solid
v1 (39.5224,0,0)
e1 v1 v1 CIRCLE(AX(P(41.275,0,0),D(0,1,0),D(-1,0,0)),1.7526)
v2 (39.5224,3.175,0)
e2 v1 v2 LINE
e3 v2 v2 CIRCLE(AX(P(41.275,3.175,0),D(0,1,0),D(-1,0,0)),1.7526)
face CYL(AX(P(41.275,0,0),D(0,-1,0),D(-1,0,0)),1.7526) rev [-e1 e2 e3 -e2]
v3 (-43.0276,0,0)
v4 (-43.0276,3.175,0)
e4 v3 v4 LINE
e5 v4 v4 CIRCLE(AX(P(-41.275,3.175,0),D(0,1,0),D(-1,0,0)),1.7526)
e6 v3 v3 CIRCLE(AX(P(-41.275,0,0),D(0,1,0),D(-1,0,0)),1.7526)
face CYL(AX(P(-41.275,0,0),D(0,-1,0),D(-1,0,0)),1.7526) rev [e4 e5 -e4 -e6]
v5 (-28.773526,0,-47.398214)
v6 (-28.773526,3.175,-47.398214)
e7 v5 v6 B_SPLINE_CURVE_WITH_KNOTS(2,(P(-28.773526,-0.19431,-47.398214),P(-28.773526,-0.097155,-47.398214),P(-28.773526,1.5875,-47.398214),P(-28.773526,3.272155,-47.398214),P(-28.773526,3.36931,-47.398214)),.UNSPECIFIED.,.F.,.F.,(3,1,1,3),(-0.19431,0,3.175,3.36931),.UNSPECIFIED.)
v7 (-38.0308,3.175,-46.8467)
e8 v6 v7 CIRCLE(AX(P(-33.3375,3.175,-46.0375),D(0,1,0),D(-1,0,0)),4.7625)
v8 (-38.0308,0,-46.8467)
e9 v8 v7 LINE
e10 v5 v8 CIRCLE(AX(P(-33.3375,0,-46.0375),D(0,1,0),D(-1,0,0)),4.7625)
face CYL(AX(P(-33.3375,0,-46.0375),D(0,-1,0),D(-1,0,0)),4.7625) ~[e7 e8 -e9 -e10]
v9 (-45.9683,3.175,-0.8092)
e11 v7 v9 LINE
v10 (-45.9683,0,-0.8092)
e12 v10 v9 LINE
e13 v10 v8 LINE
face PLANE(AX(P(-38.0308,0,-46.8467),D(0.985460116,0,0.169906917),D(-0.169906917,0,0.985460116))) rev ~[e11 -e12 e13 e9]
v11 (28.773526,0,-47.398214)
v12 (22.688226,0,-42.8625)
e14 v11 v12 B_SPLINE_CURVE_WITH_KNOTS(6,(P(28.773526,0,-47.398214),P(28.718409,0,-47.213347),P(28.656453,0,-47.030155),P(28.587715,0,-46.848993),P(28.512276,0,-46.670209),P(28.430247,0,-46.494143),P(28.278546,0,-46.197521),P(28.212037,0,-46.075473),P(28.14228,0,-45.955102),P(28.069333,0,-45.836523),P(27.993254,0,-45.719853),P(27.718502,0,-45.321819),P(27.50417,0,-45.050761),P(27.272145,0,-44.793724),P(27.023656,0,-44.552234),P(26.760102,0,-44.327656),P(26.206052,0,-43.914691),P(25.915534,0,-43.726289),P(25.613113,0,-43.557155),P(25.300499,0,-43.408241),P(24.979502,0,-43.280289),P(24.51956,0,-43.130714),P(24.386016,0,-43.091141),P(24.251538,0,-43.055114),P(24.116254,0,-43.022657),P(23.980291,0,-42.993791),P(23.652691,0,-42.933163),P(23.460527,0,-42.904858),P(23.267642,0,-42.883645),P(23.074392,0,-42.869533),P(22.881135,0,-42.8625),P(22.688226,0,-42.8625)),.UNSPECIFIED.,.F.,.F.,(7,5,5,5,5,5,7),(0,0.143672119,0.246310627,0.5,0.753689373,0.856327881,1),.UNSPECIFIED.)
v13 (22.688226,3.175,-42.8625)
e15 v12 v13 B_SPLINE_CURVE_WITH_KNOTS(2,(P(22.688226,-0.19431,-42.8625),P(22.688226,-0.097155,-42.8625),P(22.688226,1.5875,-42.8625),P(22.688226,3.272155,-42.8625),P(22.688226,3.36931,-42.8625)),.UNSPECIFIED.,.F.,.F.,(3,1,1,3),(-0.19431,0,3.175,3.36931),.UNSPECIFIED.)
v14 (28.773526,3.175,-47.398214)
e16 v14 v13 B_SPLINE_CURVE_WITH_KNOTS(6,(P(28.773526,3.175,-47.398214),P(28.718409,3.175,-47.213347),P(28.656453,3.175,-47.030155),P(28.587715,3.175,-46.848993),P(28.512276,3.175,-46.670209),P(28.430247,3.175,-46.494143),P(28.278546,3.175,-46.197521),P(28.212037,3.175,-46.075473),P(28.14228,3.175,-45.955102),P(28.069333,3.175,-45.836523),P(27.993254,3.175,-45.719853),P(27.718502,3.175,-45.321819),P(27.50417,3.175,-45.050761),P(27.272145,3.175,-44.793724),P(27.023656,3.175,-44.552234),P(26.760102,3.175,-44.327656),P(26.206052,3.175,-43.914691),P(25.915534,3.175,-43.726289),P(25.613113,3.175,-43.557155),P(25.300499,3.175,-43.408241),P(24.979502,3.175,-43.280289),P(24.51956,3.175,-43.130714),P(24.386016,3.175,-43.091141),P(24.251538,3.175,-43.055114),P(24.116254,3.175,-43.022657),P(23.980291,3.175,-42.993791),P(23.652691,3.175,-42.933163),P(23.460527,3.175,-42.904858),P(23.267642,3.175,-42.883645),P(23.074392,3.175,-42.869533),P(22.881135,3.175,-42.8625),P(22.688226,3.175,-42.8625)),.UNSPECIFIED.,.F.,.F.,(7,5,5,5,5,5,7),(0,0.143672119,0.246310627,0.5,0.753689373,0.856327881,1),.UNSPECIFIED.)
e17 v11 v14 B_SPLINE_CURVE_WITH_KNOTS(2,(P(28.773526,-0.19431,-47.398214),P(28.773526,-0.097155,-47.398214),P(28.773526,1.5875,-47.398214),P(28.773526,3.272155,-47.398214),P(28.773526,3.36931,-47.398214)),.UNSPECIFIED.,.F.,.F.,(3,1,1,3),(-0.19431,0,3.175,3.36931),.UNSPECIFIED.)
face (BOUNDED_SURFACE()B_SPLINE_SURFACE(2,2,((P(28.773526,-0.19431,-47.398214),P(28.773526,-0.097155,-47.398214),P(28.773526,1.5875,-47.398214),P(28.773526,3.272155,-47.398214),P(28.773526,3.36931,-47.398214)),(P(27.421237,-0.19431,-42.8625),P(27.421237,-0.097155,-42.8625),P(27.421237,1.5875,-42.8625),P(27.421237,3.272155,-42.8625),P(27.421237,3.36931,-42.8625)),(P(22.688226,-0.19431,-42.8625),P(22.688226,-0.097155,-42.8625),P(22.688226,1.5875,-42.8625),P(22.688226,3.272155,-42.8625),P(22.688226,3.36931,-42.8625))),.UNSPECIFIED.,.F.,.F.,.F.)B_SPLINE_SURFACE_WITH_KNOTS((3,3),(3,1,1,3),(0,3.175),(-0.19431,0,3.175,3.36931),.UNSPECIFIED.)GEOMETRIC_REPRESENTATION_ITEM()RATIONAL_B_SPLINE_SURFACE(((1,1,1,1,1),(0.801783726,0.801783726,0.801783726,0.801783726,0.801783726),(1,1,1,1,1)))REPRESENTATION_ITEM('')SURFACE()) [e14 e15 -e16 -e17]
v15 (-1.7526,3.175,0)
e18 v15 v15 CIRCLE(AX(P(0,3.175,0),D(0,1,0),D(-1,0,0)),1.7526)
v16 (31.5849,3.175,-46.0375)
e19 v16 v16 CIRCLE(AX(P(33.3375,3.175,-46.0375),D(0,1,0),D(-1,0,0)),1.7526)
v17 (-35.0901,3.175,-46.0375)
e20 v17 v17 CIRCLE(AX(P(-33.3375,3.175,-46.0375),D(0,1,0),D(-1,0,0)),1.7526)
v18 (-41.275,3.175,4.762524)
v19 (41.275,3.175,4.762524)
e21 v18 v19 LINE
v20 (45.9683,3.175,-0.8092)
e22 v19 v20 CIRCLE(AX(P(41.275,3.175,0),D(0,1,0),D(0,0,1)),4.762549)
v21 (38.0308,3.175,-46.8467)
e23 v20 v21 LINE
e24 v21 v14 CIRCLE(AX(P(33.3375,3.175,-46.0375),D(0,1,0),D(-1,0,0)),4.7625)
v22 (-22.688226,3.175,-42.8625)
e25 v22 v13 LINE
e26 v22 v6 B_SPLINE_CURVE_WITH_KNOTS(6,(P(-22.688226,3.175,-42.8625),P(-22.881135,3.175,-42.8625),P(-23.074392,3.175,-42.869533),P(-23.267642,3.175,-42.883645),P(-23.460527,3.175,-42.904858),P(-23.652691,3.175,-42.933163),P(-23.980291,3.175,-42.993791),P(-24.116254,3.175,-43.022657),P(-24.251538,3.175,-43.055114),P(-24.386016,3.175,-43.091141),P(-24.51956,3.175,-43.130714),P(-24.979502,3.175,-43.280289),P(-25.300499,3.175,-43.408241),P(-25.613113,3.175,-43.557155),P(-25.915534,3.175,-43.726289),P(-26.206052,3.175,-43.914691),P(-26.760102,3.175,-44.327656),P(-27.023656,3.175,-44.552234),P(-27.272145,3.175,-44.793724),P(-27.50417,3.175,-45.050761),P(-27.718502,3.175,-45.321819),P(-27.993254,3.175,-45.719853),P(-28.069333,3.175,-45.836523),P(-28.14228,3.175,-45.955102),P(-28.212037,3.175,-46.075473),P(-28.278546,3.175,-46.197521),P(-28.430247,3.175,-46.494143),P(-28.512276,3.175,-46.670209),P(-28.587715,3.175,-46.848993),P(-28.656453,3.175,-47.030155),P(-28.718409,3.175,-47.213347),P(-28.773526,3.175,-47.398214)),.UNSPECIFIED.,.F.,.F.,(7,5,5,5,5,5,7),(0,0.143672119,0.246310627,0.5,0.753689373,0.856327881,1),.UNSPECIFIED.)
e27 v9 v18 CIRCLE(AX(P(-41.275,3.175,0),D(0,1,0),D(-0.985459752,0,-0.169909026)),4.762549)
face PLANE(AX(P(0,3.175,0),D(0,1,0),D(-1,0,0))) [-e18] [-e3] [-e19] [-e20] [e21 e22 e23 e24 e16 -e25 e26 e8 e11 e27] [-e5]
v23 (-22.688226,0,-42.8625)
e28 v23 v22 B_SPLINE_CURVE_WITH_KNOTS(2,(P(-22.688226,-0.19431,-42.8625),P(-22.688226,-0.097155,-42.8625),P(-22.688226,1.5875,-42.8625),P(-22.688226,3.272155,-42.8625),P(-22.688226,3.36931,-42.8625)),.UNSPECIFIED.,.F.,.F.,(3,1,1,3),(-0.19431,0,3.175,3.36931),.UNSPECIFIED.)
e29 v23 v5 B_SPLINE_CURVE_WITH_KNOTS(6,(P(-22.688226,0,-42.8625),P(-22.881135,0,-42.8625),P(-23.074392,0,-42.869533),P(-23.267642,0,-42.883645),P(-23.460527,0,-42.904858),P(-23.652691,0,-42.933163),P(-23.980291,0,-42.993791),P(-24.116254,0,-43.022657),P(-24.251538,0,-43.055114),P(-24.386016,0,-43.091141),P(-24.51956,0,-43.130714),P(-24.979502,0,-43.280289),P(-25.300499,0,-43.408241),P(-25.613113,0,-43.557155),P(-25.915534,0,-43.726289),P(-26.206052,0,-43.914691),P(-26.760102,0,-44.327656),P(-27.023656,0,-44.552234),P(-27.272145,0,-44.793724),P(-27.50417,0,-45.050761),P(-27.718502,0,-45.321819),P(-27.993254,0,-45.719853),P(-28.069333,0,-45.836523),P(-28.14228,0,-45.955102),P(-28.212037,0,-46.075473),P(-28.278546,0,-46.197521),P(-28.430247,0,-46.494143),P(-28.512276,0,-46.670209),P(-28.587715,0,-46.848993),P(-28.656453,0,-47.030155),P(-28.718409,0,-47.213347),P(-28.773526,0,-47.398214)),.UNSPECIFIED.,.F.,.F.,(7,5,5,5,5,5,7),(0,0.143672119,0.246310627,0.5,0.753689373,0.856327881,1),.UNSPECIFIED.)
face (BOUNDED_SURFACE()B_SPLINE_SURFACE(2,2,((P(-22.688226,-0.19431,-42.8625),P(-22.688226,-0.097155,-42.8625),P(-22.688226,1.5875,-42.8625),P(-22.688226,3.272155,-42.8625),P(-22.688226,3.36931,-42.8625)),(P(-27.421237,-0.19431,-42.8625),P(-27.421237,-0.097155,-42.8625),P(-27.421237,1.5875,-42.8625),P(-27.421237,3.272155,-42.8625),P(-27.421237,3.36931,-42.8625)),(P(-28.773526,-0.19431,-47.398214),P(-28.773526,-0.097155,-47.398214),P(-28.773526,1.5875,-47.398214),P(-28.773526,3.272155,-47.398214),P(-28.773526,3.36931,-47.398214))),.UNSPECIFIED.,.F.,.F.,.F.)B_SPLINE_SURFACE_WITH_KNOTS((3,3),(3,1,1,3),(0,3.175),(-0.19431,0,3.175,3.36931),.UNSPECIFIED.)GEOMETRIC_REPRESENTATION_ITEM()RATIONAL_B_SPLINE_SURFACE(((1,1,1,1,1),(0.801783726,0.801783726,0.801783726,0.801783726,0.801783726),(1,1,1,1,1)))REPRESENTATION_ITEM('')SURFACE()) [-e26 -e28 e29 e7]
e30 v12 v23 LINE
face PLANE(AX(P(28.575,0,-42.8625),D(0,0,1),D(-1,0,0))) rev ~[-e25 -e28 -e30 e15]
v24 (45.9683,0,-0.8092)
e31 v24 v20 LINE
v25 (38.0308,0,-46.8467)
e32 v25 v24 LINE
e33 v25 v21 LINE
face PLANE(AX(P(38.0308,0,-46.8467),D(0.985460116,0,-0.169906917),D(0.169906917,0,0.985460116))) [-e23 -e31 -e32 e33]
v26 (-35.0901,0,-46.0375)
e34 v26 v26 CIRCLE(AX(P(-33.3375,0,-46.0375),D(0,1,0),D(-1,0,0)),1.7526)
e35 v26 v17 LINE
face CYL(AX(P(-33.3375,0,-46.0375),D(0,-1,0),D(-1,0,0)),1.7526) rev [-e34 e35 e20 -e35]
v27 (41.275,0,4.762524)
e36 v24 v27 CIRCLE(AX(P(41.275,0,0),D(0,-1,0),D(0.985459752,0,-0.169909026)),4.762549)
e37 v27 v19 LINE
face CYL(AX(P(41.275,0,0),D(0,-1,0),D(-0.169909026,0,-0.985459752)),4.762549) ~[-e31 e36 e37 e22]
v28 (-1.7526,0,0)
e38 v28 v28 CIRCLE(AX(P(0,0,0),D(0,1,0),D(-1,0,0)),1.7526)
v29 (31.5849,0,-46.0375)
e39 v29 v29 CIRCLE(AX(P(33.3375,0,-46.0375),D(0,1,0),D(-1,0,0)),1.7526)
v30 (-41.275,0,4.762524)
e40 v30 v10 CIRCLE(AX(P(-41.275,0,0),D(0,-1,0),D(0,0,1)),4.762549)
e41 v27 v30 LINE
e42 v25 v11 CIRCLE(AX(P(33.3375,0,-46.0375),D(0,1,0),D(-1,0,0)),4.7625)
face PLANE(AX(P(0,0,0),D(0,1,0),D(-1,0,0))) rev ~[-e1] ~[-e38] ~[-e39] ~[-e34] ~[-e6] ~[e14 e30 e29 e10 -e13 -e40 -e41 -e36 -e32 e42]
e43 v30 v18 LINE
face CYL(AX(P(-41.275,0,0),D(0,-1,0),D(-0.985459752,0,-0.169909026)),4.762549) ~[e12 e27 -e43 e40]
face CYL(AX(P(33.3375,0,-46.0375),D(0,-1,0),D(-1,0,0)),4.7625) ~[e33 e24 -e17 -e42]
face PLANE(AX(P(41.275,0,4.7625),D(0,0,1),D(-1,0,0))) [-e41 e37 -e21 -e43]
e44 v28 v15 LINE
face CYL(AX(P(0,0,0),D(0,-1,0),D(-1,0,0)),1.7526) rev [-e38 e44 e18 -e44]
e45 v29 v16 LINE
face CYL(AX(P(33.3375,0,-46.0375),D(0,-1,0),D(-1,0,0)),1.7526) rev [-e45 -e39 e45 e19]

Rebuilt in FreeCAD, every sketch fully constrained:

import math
import FreeCAD as App
import Part
import Sketcher

V = App.Vector
Q = App.Units.Quantity


def edges_at(feature, points):
    """Names of the edges that pass closest to the given points."""
    edges = feature.Shape.Edges
    near = lambda p: min(range(len(edges)), key=lambda i: edges[i].distToShape(Part.Vertex(*p))[0])
    return sorted({f"Edge{near(p) + 1}" for p in points})

doc = App.newDocument("Part")
body = doc.addObject("PartDesign::Body", "Body")

sketch1 = body.newObject("Sketcher::SketchObject", "Sketch")
sketch1.AttachmentSupport = (doc.getObject("XZ_Plane"), [""])
sketch1.MapMode = "FlatFace"
sketch1.addGeometry([
    Part.LineSegment(V(28.6, -46, 0), V(28.6, -42.9, 0)),
    Part.LineSegment(V(28.6, -42.9, 0), V(-28.6, -42.9, 0)),
    Part.LineSegment(V(-28.6, -42.9, 0), V(-28.6, -46, 0)),
    Part.ArcOfCircle(Part.Circle(V(-33.3, -46, 0), V(0, 0, 1), 4.8), math.radians(-170), math.radians(0)),
    Part.LineSegment(V(-38, -46.8, 0), V(-46, -0.8, 0)),
    Part.ArcOfCircle(Part.Circle(V(-41.3, 0, 0), V(0, 0, 1), 4.8), math.radians(90), math.radians(190)),
    Part.LineSegment(V(-41.3, 4.8, 0), V(41.3, 4.8, 0)),
    Part.ArcOfCircle(Part.Circle(V(41.3, 0, 0), V(0, 0, 1), 4.8), math.radians(-10), math.radians(90)),
    Part.LineSegment(V(46, -0.8, 0), V(38, -46.8, 0)),
    Part.ArcOfCircle(Part.Circle(V(33.3, -46, 0), V(0, 0, 1), 4.8), math.radians(180), math.radians(350)),
    Part.Circle(V(33.3, -46, 0), V(0, 0, 1), 1.8),
    Part.Circle(V(0, 0, 0), V(0, 0, 1), 1.8),
    Part.Circle(V(-41.3, 0, 0), V(0, 0, 1), 1.8),
    Part.Circle(V(41.3, 0, 0), V(0, 0, 1), 1.8),
    Part.Circle(V(-33.3, -46, 0), V(0, 0, 1), 1.8),
], False)
sketch1.addConstraint([
    Sketcher.Constraint("Coincident", 0, 2, 1, 1),
    Sketcher.Constraint("Coincident", 1, 2, 2, 1),
    Sketcher.Constraint("Tangent", 2, 2, 3, 2),
    Sketcher.Constraint("Tangent", 3, 1, 4, 1),
    Sketcher.Constraint("Tangent", 4, 2, 5, 2),
    Sketcher.Constraint("Tangent", 5, 1, 6, 1),
    Sketcher.Constraint("Tangent", 6, 2, 7, 2),
    Sketcher.Constraint("Tangent", 7, 1, 8, 1),
    Sketcher.Constraint("Tangent", 8, 2, 9, 2),
    Sketcher.Constraint("Tangent", 9, 1, 0, 1),
    Sketcher.Constraint("Vertical", 0),
    Sketcher.Constraint("Horizontal", 1),
    Sketcher.Constraint("Vertical", 2),
    Sketcher.Constraint("Horizontal", 6),
    Sketcher.Constraint("Coincident", 11, 3, -1, 1),
    Sketcher.Constraint("Coincident", 10, 3, 9, 3),
    Sketcher.Constraint("Coincident", 12, 3, 5, 3),
    Sketcher.Constraint("Coincident", 13, 3, 7, 3),
    Sketcher.Constraint("Coincident", 14, 3, 3, 3),
    Sketcher.Constraint("Equal", 3, 5),
    Sketcher.Constraint("Equal", 5, 7),
    Sketcher.Constraint("Equal", 7, 9),
    Sketcher.Constraint("Equal", 10, 11),
    Sketcher.Constraint("Equal", 11, 12),
    Sketcher.Constraint("Equal", 12, 13),
    Sketcher.Constraint("Equal", 13, 14),
    Sketcher.Constraint("Symmetric", 5, 3, 7, 3, -1, 1),
    Sketcher.Constraint("Symmetric", 3, 3, 9, 3, -2),
    Sketcher.Constraint("Diameter", 10, Q("0.138 in")),
    Sketcher.Constraint("Radius", 3, Q("0.1875 in")),
    Sketcher.Constraint("DistanceX", 0, 2, 7, 3, Q("0.5 in")),
    Sketcher.Constraint("DistanceY", 3, 3, -1, 1, Q("1.8125 in")),
    Sketcher.Constraint("DistanceX", 5, 3, -1, 1, Q("1.625 in")),
    Sketcher.Constraint("DistanceY", 0, 1, 0, 2, Q("0.125 in")),
])
pad1 = body.newObject("PartDesign::Pad", "Pad")
pad1.Profile = sketch1
pad1.Length = Q("0.125 in")
pad1.Reversed = True
doc.recompute()

fillet = body.newObject("PartDesign::Fillet", "Fillet")
fillet.Base = (pad1, edges_at(pad1, [(28.575, 1.587, -42.862), (-28.575, 1.587, -42.862)]))
fillet.Radius = Q("0.25 in")

doc.recompute()
